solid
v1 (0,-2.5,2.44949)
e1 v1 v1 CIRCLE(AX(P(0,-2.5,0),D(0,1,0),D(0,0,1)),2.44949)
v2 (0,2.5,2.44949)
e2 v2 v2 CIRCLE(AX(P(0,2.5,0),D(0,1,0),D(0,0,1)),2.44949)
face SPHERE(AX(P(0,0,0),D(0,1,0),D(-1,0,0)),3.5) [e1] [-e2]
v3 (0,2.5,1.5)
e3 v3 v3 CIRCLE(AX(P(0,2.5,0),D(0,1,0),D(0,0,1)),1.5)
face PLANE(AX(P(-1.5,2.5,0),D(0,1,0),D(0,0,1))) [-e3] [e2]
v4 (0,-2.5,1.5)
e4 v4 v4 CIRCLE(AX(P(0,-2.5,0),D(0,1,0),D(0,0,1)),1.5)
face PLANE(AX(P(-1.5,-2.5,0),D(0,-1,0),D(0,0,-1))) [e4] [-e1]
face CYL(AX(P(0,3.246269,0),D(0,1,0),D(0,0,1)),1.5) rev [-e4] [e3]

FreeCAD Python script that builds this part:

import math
import FreeCAD as App
import Part
import Sketcher

V = App.Vector

doc = App.newDocument("Part")
body = doc.addObject("PartDesign::Body", "Body")

# Sketch on XY plane
sketch1 = body.newObject("Sketcher::SketchObject", "Sketch")
sketch1.AttachmentSupport = (doc.getObject("XY_Plane"), [""])
sketch1.MapMode = "FlatFace"
sketch1.addGeometry([
    Part.LineSegment(V(-1.5, -2.5, 0), V(-1.5, 2.5, 0)),
    Part.LineSegment(V(-1.5, 2.5, 0), V(-2.44949, 2.5, 0)),
    Part.ArcOfCircle(Part.Circle(V(0, 0, 0), V(0, 0, 1), 3.5), math.radians(134.415309), math.radians(225.584691)),
    Part.LineSegment(V(-2.44949, -2.5, 0), V(-1.5, -2.5, 0)),
], False)
sketch1.addConstraint([
    Sketcher.Constraint("Coincident", 0, 2, 1, 1),
    Sketcher.Constraint("Coincident", 1, 2, 2, 1),
    Sketcher.Constraint("Coincident", 2, 2, 3, 1),
    Sketcher.Constraint("Coincident", 3, 2, 0, 1),
    Sketcher.Constraint("Vertical", 0),
    Sketcher.Constraint("Horizontal", 1),
    Sketcher.Constraint("Horizontal", 3),
    Sketcher.Constraint("Coincident", 2, 3, -1, 1),
    Sketcher.Constraint("Vertical", 1, 2, 2, 2),
    Sketcher.Constraint("Radius", 2, 3.5),
    Sketcher.Constraint("DistanceY", 0, 1, 0, 2, 5.0),
    Sketcher.Constraint("DistanceX", 0, 2, -1, 1, 1.5),
])
revolution = body.newObject("PartDesign::Revolution", "Revolution")
revolution.Profile = sketch1
revolution.ReferenceAxis = (sketch1, ["V_Axis"])
revolution.Angle = 360

doc.recompute()
